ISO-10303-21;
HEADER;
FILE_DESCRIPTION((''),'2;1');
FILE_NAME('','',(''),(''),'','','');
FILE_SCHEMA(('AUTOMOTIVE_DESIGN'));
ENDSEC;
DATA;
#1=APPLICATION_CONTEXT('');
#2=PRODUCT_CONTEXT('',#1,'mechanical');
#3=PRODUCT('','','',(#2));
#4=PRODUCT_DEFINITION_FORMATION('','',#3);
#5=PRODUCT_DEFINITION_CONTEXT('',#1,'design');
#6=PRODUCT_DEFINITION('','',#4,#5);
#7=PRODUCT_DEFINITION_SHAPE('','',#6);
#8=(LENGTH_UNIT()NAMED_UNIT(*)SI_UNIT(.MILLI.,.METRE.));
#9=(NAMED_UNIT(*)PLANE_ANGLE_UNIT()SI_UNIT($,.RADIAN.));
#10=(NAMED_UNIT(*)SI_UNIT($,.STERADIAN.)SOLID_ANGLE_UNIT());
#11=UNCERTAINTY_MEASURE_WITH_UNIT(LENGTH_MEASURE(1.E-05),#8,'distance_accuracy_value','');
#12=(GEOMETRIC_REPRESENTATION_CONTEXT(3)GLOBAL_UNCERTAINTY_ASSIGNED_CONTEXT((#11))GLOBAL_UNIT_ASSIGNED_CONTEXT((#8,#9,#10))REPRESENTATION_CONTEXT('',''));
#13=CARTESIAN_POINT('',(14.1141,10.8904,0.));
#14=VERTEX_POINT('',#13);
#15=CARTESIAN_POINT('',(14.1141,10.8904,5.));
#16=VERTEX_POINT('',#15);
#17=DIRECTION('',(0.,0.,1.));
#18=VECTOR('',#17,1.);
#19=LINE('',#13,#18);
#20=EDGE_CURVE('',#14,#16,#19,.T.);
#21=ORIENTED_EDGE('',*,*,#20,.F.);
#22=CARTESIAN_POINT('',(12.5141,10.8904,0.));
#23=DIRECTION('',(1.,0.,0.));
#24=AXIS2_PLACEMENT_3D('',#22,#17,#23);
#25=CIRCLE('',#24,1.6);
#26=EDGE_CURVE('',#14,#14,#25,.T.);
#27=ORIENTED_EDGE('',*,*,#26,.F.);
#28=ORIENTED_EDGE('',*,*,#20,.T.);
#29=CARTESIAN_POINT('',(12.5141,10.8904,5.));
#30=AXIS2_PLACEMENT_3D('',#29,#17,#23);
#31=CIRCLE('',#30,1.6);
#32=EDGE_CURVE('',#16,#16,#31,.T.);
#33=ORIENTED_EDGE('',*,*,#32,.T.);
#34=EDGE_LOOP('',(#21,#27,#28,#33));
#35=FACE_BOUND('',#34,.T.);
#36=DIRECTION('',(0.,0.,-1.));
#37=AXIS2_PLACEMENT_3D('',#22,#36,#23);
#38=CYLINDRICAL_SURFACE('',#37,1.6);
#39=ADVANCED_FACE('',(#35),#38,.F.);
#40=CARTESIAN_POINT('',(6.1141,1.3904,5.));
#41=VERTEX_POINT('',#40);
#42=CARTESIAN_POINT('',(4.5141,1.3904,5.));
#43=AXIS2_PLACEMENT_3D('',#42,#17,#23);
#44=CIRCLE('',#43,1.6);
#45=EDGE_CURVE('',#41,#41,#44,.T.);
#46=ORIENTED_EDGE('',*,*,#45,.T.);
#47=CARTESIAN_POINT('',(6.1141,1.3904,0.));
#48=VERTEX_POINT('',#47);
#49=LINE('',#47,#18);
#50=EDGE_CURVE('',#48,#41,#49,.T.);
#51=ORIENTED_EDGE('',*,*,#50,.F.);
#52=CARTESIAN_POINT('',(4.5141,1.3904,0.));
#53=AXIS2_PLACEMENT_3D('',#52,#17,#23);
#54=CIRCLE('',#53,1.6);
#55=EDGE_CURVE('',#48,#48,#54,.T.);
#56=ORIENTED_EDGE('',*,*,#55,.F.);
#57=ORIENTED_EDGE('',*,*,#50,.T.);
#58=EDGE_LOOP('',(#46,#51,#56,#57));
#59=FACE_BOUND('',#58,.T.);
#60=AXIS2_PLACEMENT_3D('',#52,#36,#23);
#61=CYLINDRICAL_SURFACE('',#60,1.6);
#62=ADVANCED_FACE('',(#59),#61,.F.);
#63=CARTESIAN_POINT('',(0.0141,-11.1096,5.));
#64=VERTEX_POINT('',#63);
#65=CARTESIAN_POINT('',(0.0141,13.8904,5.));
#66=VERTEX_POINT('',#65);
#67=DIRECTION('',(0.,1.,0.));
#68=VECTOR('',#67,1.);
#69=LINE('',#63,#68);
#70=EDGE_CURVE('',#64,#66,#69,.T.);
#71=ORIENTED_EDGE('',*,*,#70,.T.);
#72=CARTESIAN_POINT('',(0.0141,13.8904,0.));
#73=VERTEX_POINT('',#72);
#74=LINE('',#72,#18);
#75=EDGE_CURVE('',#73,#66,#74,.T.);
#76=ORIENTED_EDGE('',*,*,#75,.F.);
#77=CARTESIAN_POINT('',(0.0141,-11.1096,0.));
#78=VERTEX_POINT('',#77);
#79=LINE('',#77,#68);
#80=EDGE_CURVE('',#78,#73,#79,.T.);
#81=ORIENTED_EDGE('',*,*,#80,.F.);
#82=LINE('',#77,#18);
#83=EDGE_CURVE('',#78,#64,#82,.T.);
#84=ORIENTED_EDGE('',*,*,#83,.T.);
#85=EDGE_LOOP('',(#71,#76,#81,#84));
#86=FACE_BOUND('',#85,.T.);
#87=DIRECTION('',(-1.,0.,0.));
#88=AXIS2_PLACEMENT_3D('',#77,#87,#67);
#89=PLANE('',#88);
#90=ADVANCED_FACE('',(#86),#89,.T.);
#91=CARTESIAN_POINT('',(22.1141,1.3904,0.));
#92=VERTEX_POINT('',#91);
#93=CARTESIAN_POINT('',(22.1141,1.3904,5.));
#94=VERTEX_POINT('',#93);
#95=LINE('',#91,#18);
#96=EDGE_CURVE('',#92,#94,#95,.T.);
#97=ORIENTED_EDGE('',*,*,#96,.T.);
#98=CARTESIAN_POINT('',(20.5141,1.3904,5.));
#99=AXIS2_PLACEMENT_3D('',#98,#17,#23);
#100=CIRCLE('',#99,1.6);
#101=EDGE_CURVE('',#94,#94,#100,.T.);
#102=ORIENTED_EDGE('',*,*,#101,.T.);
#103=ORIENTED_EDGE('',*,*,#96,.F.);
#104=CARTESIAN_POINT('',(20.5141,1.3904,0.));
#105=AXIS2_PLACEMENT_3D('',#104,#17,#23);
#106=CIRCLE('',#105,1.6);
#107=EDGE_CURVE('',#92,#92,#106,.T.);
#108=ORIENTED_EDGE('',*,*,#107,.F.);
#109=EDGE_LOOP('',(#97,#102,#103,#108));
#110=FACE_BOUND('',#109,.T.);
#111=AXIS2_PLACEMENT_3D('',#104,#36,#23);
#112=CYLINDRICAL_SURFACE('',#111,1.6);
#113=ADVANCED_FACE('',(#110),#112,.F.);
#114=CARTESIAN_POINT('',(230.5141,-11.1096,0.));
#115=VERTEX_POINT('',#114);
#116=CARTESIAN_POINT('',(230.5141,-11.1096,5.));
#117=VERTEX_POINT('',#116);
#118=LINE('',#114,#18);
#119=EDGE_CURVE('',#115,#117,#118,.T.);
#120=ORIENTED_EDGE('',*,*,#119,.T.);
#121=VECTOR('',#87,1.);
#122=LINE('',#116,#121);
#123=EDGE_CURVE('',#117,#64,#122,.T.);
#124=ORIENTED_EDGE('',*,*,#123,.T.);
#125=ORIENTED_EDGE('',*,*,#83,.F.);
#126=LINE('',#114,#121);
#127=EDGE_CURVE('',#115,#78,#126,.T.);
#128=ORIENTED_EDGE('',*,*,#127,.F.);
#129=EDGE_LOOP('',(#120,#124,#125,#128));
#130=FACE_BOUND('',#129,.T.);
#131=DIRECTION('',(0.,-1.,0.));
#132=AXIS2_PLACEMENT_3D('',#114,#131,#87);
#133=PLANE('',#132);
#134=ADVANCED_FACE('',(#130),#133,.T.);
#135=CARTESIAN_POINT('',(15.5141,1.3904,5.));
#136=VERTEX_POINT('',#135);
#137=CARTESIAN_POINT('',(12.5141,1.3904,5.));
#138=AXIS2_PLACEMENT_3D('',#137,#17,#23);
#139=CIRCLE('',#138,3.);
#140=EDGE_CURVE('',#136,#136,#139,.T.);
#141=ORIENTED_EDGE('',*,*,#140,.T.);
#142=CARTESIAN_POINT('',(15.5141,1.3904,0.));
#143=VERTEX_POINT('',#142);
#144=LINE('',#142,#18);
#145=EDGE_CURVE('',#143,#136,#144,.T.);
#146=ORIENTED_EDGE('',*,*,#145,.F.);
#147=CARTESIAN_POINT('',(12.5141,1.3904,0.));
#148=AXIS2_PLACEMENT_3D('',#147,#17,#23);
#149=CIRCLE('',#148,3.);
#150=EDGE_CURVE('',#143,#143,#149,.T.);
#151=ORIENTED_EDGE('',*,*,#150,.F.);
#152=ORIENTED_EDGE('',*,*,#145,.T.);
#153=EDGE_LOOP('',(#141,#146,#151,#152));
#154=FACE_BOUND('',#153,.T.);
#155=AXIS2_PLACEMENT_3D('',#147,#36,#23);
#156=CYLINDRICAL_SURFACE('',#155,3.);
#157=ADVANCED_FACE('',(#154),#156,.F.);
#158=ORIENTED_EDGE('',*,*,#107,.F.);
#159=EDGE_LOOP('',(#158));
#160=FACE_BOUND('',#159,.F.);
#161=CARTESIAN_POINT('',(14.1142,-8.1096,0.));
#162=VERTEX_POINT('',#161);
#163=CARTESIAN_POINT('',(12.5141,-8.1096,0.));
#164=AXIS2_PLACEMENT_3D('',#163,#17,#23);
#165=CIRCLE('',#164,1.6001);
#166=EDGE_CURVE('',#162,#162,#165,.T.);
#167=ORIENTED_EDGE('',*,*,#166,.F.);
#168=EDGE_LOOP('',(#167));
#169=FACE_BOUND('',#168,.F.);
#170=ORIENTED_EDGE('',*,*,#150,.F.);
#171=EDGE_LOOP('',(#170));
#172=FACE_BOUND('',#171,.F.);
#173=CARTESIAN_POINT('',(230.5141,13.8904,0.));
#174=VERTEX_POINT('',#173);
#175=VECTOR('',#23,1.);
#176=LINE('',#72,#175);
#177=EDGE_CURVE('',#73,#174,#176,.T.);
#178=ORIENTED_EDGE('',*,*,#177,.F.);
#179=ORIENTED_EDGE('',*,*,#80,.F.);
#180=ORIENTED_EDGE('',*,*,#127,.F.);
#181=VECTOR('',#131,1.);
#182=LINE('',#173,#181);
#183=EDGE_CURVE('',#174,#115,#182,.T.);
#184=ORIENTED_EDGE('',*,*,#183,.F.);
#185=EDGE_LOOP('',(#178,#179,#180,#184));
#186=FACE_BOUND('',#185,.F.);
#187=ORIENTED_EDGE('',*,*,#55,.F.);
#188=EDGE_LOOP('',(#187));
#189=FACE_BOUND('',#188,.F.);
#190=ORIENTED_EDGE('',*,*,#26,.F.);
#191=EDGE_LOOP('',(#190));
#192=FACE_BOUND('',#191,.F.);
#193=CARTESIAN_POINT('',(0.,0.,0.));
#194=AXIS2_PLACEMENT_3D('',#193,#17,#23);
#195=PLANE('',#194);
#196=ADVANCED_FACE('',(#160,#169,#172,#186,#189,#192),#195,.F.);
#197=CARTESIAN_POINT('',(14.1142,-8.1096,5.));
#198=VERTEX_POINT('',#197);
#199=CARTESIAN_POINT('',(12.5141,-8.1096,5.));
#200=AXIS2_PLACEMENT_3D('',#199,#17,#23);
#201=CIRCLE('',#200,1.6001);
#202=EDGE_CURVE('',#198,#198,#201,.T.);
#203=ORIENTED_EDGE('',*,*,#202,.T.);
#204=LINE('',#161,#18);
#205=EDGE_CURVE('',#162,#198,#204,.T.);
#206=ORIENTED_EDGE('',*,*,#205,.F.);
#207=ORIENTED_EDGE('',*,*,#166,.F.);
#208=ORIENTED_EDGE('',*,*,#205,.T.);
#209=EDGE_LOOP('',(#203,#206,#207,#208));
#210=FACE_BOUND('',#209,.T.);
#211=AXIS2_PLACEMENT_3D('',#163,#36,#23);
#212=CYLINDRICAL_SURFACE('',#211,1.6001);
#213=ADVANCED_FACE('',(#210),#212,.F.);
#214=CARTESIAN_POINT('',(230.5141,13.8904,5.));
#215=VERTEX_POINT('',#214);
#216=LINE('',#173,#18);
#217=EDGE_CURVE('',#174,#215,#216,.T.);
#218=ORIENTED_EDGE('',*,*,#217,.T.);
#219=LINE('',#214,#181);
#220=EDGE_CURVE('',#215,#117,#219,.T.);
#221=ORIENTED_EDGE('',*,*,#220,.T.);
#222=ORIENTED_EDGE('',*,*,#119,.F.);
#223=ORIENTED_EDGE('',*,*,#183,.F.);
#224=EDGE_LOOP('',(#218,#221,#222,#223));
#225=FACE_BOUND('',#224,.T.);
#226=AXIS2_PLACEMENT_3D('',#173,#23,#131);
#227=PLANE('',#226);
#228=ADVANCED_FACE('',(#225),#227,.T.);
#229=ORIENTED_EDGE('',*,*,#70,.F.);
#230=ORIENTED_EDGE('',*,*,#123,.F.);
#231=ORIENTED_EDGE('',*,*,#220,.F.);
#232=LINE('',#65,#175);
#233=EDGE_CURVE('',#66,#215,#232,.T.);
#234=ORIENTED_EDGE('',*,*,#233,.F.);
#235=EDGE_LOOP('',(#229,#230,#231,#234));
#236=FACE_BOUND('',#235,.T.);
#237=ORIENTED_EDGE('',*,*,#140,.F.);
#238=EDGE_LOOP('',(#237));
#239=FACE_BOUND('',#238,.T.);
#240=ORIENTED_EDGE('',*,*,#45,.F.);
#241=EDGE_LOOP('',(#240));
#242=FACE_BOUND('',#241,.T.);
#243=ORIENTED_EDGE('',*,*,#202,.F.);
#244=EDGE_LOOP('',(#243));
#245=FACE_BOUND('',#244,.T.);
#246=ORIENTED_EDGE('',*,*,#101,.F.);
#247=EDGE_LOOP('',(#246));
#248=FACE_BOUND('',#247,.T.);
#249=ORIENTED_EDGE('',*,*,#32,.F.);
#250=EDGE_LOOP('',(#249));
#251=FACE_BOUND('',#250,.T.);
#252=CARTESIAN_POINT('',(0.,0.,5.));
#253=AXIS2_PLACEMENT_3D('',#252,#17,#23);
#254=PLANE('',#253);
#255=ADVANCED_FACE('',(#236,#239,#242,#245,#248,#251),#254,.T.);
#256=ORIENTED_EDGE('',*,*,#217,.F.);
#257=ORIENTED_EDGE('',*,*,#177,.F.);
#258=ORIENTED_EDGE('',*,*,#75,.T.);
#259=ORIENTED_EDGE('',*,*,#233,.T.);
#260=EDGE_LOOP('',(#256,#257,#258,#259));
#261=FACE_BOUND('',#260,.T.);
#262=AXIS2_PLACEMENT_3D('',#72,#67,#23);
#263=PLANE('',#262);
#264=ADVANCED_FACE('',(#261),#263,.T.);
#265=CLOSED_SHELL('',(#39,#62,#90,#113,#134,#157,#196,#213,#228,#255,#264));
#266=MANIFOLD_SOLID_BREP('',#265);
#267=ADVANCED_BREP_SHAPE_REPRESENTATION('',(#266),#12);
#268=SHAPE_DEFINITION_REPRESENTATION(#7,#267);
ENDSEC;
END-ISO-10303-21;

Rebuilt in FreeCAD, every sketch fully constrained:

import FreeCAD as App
import Part
import Sketcher
Q = App.Units.Quantity

doc = App.newDocument("Part")
params = doc.addObject("Spreadsheet::Sheet", "Params")
for row, (alias, value) in enumerate([
    ("sketch1_height", "25 mm"),
    ("sketch1_diameter", "6 mm"),
    ("sketch1_width", "230.5 mm"),
    ("sketch1_diameter2", "3.2 mm"),
    ("pad1_length", "5 mm"),
], start=1):
    params.set(f"A{row}", alias)
    params.set(f"B{row}", "=" + value)
    params.setAlias(f"B{row}", alias)

body = doc.addObject("PartDesign::Body", "Body")

# Sketch on XY plane
sketch1 = body.newObject("Sketcher::SketchObject", "Sketch")
sketch1.AttachmentSupport = (doc.getObject("XY_Plane"), [""])
sketch1.MapMode = "FlatFace"
sketch1.addGeometry([
    Part.LineSegment(App.Vector(230.5, 13.9, 0), App.Vector(0, 13.9, 0)),  # 0
    Part.LineSegment(App.Vector(0, 13.9, 0), App.Vector(0, -11.1, 0)),  # 1
    Part.LineSegment(App.Vector(0, -11.1, 0), App.Vector(230.5, -11.1, 0)),  # 2
    Part.LineSegment(App.Vector(230.5, -11.1, 0), App.Vector(230.5, 13.9, 0)),  # 3
    Part.Circle(App.Vector(12.5, -8.1, 0), App.Vector(0, 0, 1), 1.6),  # 4
    Part.Circle(App.Vector(4.5, 1.4, 0), App.Vector(0, 0, 1), 1.6),  # 5
    Part.Circle(App.Vector(12.5, 1.4, 0), App.Vector(0, 0, 1), 3),  # 6
    Part.Circle(App.Vector(20.5, 1.4, 0), App.Vector(0, 0, 1), 1.6),  # 7
    Part.Circle(App.Vector(12.5, 10.9, 0), App.Vector(0, 0, 1), 1.6),  # 8
], False)
sketch1.addConstraint([
    Sketcher.Constraint("Coincident", 0, 2, 1, 1),
    Sketcher.Constraint("Coincident", 1, 2, 2, 1),
    Sketcher.Constraint("Coincident", 2, 2, 3, 1),
    Sketcher.Constraint("Coincident", 3, 2, 0, 1),
    Sketcher.Constraint("Horizontal", 0),
    Sketcher.Constraint("Vertical", 1),
    Sketcher.Constraint("Horizontal", 2),
    Sketcher.Constraint("Vertical", 3),
    Sketcher.Constraint("Equal", 4, 5),
    Sketcher.Constraint("Equal", 5, 7),
    Sketcher.Constraint("Equal", 7, 8),
    Sketcher.Constraint("Horizontal", 5, 3, 6, 3),
    Sketcher.Constraint("Horizontal", 6, 3, 7, 3),
    Sketcher.Constraint("Vertical", 4, 3, 6, 3),
    Sketcher.Constraint("Vertical", 6, 3, 8, 3),
    Sketcher.Constraint("DistanceY", 1, 2, 1, 1, Q("25 mm")),
    Sketcher.Constraint("Diameter", 6, Q("6 mm")),
    Sketcher.Constraint("DistanceX", 0, 2, 0, 1, Q("230.5 mm")),
    Sketcher.Constraint("DistanceY", 4, 3, 8, 3, Q("19 mm")),
    Sketcher.Constraint("Diameter", 5, Q("3.2 mm")),
    Sketcher.Constraint("DistanceX", 0, 2, 8, 3, Q("12.5 mm")),
    Sketcher.Constraint("DistanceX", 0, 2, 5, 3, Q("4.5 mm")),
    Sketcher.Constraint("DistanceY", 5, 3, 0, 2, Q("12.5 mm")),
    Sketcher.Constraint("DistanceX", 6, 3, 7, 3, Q("8 mm")),
    Sketcher.Constraint("DistanceY", 8, 3, 0, 2, Q("3 mm")),
    Sketcher.Constraint("DistanceX", -1, 1, 4, 3, Q("12.514 mm")),
    Sketcher.Constraint("DistanceY", 4, 3, -1, 1, Q("8.1096 mm")),
])
sketch1.setExpression("Constraints[15]", "Params.sketch1_height")
sketch1.setExpression("Constraints[16]", "Params.sketch1_diameter")
sketch1.setExpression("Constraints[17]", "Params.sketch1_width")
sketch1.setExpression("Constraints[19]", "Params.sketch1_diameter2")
pad1 = body.newObject("PartDesign::Pad", "Pad")
pad1.Profile = sketch1
pad1.setExpression("Length", "Params.pad1_length")

doc.recompute()
